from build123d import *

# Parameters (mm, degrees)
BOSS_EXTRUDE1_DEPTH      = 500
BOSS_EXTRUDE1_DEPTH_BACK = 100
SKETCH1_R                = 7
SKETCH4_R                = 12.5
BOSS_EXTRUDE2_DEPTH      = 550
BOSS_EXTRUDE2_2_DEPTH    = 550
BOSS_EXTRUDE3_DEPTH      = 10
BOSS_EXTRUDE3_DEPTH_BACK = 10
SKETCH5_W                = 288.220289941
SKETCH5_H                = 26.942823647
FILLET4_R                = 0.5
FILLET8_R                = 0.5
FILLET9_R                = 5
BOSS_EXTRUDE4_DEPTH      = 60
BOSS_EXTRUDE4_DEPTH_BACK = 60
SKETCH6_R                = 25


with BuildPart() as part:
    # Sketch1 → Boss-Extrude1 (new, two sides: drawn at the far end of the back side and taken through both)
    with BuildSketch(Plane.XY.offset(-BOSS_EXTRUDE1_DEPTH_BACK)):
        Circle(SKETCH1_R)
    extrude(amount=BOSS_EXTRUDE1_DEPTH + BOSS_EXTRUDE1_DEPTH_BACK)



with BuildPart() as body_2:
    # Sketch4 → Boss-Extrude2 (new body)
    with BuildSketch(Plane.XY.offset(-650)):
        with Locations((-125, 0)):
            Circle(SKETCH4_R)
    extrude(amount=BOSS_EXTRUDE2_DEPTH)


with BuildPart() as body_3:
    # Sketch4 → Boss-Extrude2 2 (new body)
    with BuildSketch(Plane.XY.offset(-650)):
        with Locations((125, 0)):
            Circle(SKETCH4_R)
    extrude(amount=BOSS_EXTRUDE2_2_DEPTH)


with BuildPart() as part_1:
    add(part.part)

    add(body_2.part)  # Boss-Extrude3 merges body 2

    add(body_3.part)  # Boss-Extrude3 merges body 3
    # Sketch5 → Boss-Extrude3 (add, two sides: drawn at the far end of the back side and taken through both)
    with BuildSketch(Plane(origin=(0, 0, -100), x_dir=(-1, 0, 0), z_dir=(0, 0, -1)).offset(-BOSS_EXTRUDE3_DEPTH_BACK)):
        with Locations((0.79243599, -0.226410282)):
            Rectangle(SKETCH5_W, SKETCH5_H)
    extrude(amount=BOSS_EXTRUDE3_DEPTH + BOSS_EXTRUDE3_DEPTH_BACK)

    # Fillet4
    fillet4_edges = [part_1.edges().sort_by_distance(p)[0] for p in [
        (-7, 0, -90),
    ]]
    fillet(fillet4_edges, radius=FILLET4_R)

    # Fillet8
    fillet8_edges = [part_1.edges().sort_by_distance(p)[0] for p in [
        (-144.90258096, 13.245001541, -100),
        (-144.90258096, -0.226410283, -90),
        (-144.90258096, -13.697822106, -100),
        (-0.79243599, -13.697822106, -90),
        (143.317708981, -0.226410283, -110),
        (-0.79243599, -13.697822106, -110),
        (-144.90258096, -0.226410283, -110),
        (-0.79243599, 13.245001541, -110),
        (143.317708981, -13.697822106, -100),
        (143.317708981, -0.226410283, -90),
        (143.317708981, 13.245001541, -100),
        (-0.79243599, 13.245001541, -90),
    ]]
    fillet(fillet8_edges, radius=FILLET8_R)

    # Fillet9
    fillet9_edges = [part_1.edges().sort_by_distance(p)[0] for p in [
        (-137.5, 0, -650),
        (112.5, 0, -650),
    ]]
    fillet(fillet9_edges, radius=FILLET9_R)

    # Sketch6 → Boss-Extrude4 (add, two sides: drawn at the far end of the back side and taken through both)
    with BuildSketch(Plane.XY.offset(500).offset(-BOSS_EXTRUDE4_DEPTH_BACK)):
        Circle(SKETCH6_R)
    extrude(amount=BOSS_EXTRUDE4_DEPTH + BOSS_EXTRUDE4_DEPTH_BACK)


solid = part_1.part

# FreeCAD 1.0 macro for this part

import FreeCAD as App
import Part
import Sketcher
Q = App.Units.Quantity


def edges_at(feature, points):
    """Names of the edges that pass closest to the given points."""
    edges = feature.Shape.Edges
    near = lambda p: min(range(len(edges)), key=lambda i: edges[i].distToShape(Part.Vertex(*p))[0])
    return sorted({f"Edge{near(p) + 1}" for p in points})

doc = App.newDocument("Part")
body = doc.addObject("PartDesign::Body", "Body")

# Sketch on XY plane
sketch1 = body.newObject("Sketcher::SketchObject", "Sketch")
sketch1.AttachmentSupport = (doc.getObject("XY_Plane"), [""])
sketch1.MapMode = "FlatFace"
sketch1.addGeometry(Part.Circle(App.Vector(0, 0, 0), App.Vector(0, 0, 1), 7), False)
sketch1.addConstraint([
    Sketcher.Constraint("Coincident", 0, 3, -1, 1),
    Sketcher.Constraint("Diameter", 0, Q("14 mm")),
])
pad1 = body.newObject("PartDesign::Pad", "Pad")
pad1.Profile = sketch1
pad1.Type = "TwoLengths"
pad1.Length = 500
pad1.Length2 = 100
body2 = doc.addObject("PartDesign::Body", "Body001")

# Sketch on XY plane
sketch2 = body2.newObject("Sketcher::SketchObject", "Sketch001")
sketch2.AttachmentSupport = (doc.getObject("XY_Plane001"), [""])
sketch2.MapMode = "FlatFace"
sketch2.AttachmentOffset = App.Placement(App.Vector(0, 0, -650), App.Rotation())
sketch2.addGeometry(Part.Circle(App.Vector(-125, 0, 0), App.Vector(0, 0, 1), 12.5), False)
sketch2.addConstraint([
    Sketcher.Constraint("PointOnObject", 0, 3, -1),
    Sketcher.Constraint("Diameter", 0, Q("25 mm")),
    Sketcher.Constraint("DistanceX", 0, 3, -1, 1, Q("125 mm")),
])
pad2 = body2.newObject("PartDesign::Pad", "Pad001")
pad2.Profile = sketch2
pad2.Length = 550
body3 = doc.addObject("PartDesign::Body", "Body002")

# Sketch on XY plane
sketch3 = body3.newObject("Sketcher::SketchObject", "Sketch002")
sketch3.AttachmentSupport = (doc.getObject("XY_Plane002"), [""])
sketch3.MapMode = "FlatFace"
sketch3.AttachmentOffset = App.Placement(App.Vector(0, 0, -650), App.Rotation())
sketch3.addGeometry(Part.Circle(App.Vector(125, 0, 0), App.Vector(0, 0, 1), 12.5), False)
sketch3.addConstraint([
    Sketcher.Constraint("PointOnObject", 0, 3, -1),
    Sketcher.Constraint("Diameter", 0, Q("25 mm")),
    Sketcher.Constraint("DistanceX", -1, 1, 0, 3, Q("125 mm")),
])
pad3 = body3.newObject("PartDesign::Pad", "Pad002")
pad3.Profile = sketch3
pad3.Length = 550
body.AllowCompound = True
doc.recompute()

boolean = body.newObject("PartDesign::Boolean", "Boolean")
boolean.Type = "Fuse"
boolean.addObjects([body2])
doc.recompute()

boolean2 = body.newObject("PartDesign::Boolean", "Boolean001")
boolean2.Type = "Fuse"
boolean2.addObjects([body3])

# Sketch on XY plane
sketch4 = body.newObject("Sketcher::SketchObject", "Sketch003")
sketch4.AttachmentSupport = (doc.getObject("XY_Plane"), [""])
sketch4.MapMode = "FlatFace"
sketch4.AttachmentOffset = App.Placement(App.Vector(0, 0, -100), App.Rotation())
sketch4.addGeometry([
    Part.LineSegment(App.Vector(143.317709, 13.245002, 0), App.Vector(143.317709, -13.697822, 0)),
    Part.LineSegment(App.Vector(143.317709, -13.697822, 0), App.Vector(-144.902581, -13.697822, 0)),
    Part.LineSegment(App.Vector(-144.902581, -13.697822, 0), App.Vector(-144.902581, 13.245002, 0)),
    Part.LineSegment(App.Vector(-144.902581, 13.245002, 0), App.Vector(143.317709, 13.245002, 0)),
], False)
sketch4.addConstraint([
    Sketcher.Constraint("Coincident", 0, 2, 1, 1),
    Sketcher.Constraint("Coincident", 1, 2, 2, 1),
    Sketcher.Constraint("Coincident", 2, 2, 3, 1),
    Sketcher.Constraint("Coincident", 3, 2, 0, 1),
    Sketcher.Constraint("Vertical", 0),
    Sketcher.Constraint("Horizontal", 1),
    Sketcher.Constraint("Vertical", 2),
    Sketcher.Constraint("Horizontal", 3),
    Sketcher.Constraint("DistanceY", -1, 1, 2, 2, Q("13.245002 mm")),
    Sketcher.Constraint("DistanceX", 1, 2, 1, 1, Q("288.22029 mm")),
    Sketcher.Constraint("DistanceY", 0, 2, 0, 1, Q("26.942824 mm")),
    Sketcher.Constraint("DistanceX", -1, 1, 0, 2, Q("143.317709 mm")),
])
pad4 = body.newObject("PartDesign::Pad", "Pad003")
pad4.Profile = sketch4
pad4.Type = "TwoLengths"
pad4.Length = 10
pad4.Length2 = 10
pad4.Reversed = True
doc.recompute()

fillet = body.newObject("PartDesign::Fillet", "Fillet")
fillet.Base = (pad4, edges_at(pad4, [(-7, 0, -90)]))
fillet.Radius = 0.5
doc.recompute()

fillet2 = body.newObject("PartDesign::Fillet", "Fillet001")
fillet2.Base = (fillet, edges_at(fillet, [
    (-144.903, 13.245, -100),
    (-144.903, -0.226, -90),
    (-144.903, -13.698, -100),
    (-0.792, -13.698, -90),
    (143.318, -0.226, -110),
    (-0.792, -13.698, -110),
    (-144.903, -0.226, -110),
    (-0.792, 13.245, -110),
    (143.318, -13.698, -100),
    (143.318, -0.226, -90),
    (143.318, 13.245, -100),
    (-0.792, 13.245, -90),
]))
fillet2.Radius = 0.5
doc.recompute()

fillet3 = body.newObject("PartDesign::Fillet", "Fillet002")
fillet3.Base = (fillet2, edges_at(fillet2, [(-137.5, 0, -650), (112.5, 0, -650)]))
fillet3.Radius = 5

# Sketch on XY plane
sketch5 = body.newObject("Sketcher::SketchObject", "Sketch004")
sketch5.AttachmentSupport = (doc.getObject("XY_Plane"), [""])
sketch5.MapMode = "FlatFace"
sketch5.AttachmentOffset = App.Placement(App.Vector(0, 0, 500), App.Rotation())
sketch5.addGeometry(Part.Circle(App.Vector(0, 0, 0), App.Vector(0, 0, 1), 25), False)
sketch5.addConstraint([
    Sketcher.Constraint("Coincident", 0, 3, -1, 1),
    Sketcher.Constraint("Diameter", 0, Q("50 mm")),
])
pad5 = body.newObject("PartDesign::Pad", "Pad004")
pad5.Profile = sketch5
pad5.Type = "TwoLengths"
pad5.Length = 60
pad5.Length2 = 60

doc.recompute()
